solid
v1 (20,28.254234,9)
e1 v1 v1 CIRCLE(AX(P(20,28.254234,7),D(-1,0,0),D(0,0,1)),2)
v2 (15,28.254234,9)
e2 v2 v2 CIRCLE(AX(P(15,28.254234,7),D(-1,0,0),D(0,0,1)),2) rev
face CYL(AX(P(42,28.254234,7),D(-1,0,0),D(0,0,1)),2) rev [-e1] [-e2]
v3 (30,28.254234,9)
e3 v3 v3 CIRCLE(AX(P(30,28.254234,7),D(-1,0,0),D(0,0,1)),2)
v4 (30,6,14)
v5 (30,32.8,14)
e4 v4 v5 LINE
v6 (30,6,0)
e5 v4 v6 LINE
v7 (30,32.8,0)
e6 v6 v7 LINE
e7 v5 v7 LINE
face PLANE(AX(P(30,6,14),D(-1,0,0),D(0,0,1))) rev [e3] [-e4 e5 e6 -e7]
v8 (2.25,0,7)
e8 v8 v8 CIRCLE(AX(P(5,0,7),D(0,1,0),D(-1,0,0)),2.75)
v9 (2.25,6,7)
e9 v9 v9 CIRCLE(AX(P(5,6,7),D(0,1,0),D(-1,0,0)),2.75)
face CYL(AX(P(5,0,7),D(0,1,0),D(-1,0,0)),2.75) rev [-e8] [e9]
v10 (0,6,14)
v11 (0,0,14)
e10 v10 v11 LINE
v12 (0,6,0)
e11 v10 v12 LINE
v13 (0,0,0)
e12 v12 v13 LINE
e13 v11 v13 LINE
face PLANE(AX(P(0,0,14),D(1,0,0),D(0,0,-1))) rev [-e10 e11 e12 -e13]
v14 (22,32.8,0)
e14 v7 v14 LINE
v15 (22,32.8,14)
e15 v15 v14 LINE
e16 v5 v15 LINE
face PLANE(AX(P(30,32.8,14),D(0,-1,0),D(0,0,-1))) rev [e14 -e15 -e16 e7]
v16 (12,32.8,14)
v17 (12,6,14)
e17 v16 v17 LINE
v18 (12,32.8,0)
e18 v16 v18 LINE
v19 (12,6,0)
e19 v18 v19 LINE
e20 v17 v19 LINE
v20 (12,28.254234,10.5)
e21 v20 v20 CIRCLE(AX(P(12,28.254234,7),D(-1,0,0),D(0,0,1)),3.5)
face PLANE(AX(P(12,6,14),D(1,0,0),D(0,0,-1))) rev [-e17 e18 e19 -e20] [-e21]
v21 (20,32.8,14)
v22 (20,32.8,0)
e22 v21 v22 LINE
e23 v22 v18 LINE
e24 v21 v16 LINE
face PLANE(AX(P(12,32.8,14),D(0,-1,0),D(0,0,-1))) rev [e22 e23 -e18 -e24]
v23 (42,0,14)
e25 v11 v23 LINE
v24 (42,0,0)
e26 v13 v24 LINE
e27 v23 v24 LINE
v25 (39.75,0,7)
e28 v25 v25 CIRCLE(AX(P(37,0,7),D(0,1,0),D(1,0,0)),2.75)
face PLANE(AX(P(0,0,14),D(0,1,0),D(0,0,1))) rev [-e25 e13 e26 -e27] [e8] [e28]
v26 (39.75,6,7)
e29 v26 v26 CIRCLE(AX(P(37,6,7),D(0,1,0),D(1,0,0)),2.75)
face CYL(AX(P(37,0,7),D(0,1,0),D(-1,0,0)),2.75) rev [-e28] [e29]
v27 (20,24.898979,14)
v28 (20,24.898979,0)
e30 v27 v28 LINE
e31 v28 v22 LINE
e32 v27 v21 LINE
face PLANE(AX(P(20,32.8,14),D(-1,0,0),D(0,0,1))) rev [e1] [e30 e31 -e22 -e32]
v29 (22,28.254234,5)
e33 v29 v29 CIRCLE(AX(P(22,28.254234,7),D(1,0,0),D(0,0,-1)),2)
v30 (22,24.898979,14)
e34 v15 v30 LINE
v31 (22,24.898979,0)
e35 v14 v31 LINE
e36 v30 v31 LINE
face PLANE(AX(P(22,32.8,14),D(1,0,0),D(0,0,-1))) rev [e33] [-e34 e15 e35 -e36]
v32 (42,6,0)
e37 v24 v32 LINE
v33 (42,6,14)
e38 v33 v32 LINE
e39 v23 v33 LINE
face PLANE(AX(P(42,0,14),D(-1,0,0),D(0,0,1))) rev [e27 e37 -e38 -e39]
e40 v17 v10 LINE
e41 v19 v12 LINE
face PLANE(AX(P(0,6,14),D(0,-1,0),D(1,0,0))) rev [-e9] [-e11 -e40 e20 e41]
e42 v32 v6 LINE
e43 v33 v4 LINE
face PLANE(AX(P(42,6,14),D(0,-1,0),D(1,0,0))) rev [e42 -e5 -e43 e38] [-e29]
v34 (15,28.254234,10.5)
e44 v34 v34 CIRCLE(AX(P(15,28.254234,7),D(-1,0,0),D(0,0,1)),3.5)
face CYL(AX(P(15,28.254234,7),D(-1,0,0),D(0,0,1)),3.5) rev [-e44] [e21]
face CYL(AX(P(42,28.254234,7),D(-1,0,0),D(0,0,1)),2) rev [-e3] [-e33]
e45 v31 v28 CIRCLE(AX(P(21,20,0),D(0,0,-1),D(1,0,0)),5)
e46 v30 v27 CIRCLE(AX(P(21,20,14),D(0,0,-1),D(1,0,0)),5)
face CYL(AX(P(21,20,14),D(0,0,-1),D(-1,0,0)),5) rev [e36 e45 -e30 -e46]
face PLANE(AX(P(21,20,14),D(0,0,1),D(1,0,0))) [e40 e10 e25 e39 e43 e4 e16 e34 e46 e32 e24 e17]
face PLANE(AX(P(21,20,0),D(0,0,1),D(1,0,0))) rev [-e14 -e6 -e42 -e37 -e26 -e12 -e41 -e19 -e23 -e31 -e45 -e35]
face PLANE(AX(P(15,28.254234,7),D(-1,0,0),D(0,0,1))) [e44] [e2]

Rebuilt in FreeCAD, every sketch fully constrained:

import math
import FreeCAD as App
import Part
import Sketcher

V = App.Vector

doc = App.newDocument("Part")
body = doc.addObject("PartDesign::Body", "Body")

sketch1 = body.newObject("Sketcher::SketchObject", "Sketch")
sketch1.AttachmentSupport = (doc.getObject("XY_Plane"), [""])
sketch1.MapMode = "FlatFace"
sketch1.addGeometry([
    Part.LineSegment(V(0, 0, 0), V(42, 0, 0)),
    Part.LineSegment(V(42, 0, 0), V(42, 6, 0)),
    Part.LineSegment(V(42, 6, 0), V(30, 6, 0)),
    Part.LineSegment(V(30, 6, 0), V(30, 32.8, 0)),
    Part.LineSegment(V(30, 32.8, 0), V(22, 32.8, 0)),
    Part.LineSegment(V(22, 32.8, 0), V(22, 24.9, 0)),
    Part.ArcOfCircle(Part.Circle(V(21, 20, 0), V(0, 0, 1), 5), math.radians(102), math.radians(438)),
    Part.LineSegment(V(20, 24.9, 0), V(20, 32.8, 0)),
    Part.LineSegment(V(20, 32.8, 0), V(12, 32.8, 0)),
    Part.LineSegment(V(12, 32.8, 0), V(12, 6, 0)),
    Part.LineSegment(V(12, 6, 0), V(0, 6, 0)),
    Part.LineSegment(V(0, 6, 0), V(0, 0, 0)),
], False)
sketch1.addConstraint([
    Sketcher.Constraint("Coincident", 0, 2, 1, 1),
    Sketcher.Constraint("Coincident", 1, 2, 2, 1),
    Sketcher.Constraint("Coincident", 2, 2, 3, 1),
    Sketcher.Constraint("Coincident", 3, 2, 4, 1),
    Sketcher.Constraint("Coincident", 4, 2, 5, 1),
    Sketcher.Constraint("Coincident", 5, 2, 6, 2),
    Sketcher.Constraint("Coincident", 6, 1, 7, 1),
    Sketcher.Constraint("Coincident", 7, 2, 8, 1),
    Sketcher.Constraint("Coincident", 8, 2, 9, 1),
    Sketcher.Constraint("Coincident", 9, 2, 10, 1),
    Sketcher.Constraint("Coincident", 10, 2, 11, 1),
    Sketcher.Constraint("Coincident", 11, 2, 0, 1),
    Sketcher.Constraint("Horizontal", 0),
    Sketcher.Constraint("Vertical", 1),
    Sketcher.Constraint("Horizontal", 2),
    Sketcher.Constraint("Vertical", 3),
    Sketcher.Constraint("Horizontal", 4),
    Sketcher.Constraint("Vertical", 5),
    Sketcher.Constraint("Vertical", 7),
    Sketcher.Constraint("Horizontal", 8),
    Sketcher.Constraint("Vertical", 9),
    Sketcher.Constraint("Horizontal", 10),
    Sketcher.Constraint("Vertical", 11),
    Sketcher.Constraint("Coincident", 11, 2, -1, 1),
    Sketcher.Constraint("Horizontal", 5, 2, 6, 1),
    Sketcher.Constraint("Horizontal", 4, 2, 7, 2),
    Sketcher.Constraint("Horizontal", 2, 2, 9, 2),
    Sketcher.Constraint("Equal", 4, 8),
    Sketcher.Constraint("Equal", 2, 10),
    Sketcher.Constraint("Radius", 6, 5.0),
    Sketcher.Constraint("DistanceX", 0, 1, 0, 2, 42.0),
    Sketcher.Constraint("DistanceX", 2, 2, 2, 1, 12.0),
    Sketcher.Constraint("DistanceX", 4, 2, 4, 1, 8.0),
    Sketcher.Constraint("DistanceY", 1, 1, 1, 2, 6.0),
    Sketcher.Constraint("DistanceY", 3, 1, 3, 2, 26.8),
    Sketcher.Constraint("DistanceY", -1, 1, 6, 3, 20.0),
])
pad1 = body.newObject("PartDesign::Pad", "Pad")
pad1.Profile = sketch1
pad1.Length = 14

sketch2 = body.newObject("Sketcher::SketchObject", "Sketch001")
sketch2.AttachmentSupport = (doc.getObject("XZ_Plane"), [""])
sketch2.MapMode = "FlatFace"
sketch2.AttachmentOffset = App.Placement(V(0, 0, -6), App.Rotation())
sketch2.addGeometry([
    Part.Circle(V(5, 7, 0), V(0, 0, 1), 2.8),
    Part.Circle(V(37, 7, 0), V(0, 0, 1), 2.8),
], False)
sketch2.addConstraint([
    Sketcher.Constraint("Equal", 0, 1),
    Sketcher.Constraint("Horizontal", 0, 3, 1, 3),
    Sketcher.Constraint("Diameter", 0, 5.5),
    Sketcher.Constraint("DistanceX", -1, 1, 0, 3, 5.0),
    Sketcher.Constraint("DistanceY", -1, 1, 0, 3, 7.0),
    Sketcher.Constraint("DistanceX", -1, 1, 1, 3, 37.0),
])
pocket1 = body.newObject("PartDesign::Pocket", "Pocket")
pocket1.Profile = sketch2
pocket1.Type = "ThroughAll"
pocket1.Reversed = True

sketch3 = body.newObject("Sketcher::SketchObject", "Sketch002")
sketch3.AttachmentSupport = (doc.getObject("YZ_Plane"), [""])
sketch3.MapMode = "FlatFace"
sketch3.AttachmentOffset = App.Placement(V(0, 0, 12), App.Rotation())
sketch3.addGeometry(Part.Circle(V(28.3, 7, 0), V(0, 0, 1), 2), False)
sketch3.addConstraint([
    Sketcher.Constraint("Diameter", 0, 4.0),
    Sketcher.Constraint("DistanceY", -1, 1, 0, 3, 7.0),
    Sketcher.Constraint("DistanceX", -1, 1, 0, 3, 28.254234),
])
pocket2 = body.newObject("PartDesign::Pocket", "Pocket001")
pocket2.Profile = sketch3
pocket2.Type = "ThroughAll"
pocket2.Reversed = True

sketch4 = body.newObject("Sketcher::SketchObject", "Sketch003")
sketch4.AttachmentSupport = (doc.getObject("YZ_Plane"), [""])
sketch4.MapMode = "FlatFace"
sketch4.AttachmentOffset = App.Placement(V(0, 0, 12), App.Rotation())
sketch4.addGeometry(Part.Circle(V(28.3, 7, 0), V(0, 0, 1), 3.5), False)
sketch4.addConstraint([
    Sketcher.Constraint("Diameter", 0, 7.0),
    Sketcher.Constraint("DistanceY", -1, 1, 0, 3, 7.0),
    Sketcher.Constraint("DistanceX", -1, 1, 0, 3, 28.254234),
])
pocket3 = body.newObject("PartDesign::Pocket", "Pocket002")
pocket3.Profile = sketch4
pocket3.Length = 3
pocket3.Reversed = True

doc.recompute()
